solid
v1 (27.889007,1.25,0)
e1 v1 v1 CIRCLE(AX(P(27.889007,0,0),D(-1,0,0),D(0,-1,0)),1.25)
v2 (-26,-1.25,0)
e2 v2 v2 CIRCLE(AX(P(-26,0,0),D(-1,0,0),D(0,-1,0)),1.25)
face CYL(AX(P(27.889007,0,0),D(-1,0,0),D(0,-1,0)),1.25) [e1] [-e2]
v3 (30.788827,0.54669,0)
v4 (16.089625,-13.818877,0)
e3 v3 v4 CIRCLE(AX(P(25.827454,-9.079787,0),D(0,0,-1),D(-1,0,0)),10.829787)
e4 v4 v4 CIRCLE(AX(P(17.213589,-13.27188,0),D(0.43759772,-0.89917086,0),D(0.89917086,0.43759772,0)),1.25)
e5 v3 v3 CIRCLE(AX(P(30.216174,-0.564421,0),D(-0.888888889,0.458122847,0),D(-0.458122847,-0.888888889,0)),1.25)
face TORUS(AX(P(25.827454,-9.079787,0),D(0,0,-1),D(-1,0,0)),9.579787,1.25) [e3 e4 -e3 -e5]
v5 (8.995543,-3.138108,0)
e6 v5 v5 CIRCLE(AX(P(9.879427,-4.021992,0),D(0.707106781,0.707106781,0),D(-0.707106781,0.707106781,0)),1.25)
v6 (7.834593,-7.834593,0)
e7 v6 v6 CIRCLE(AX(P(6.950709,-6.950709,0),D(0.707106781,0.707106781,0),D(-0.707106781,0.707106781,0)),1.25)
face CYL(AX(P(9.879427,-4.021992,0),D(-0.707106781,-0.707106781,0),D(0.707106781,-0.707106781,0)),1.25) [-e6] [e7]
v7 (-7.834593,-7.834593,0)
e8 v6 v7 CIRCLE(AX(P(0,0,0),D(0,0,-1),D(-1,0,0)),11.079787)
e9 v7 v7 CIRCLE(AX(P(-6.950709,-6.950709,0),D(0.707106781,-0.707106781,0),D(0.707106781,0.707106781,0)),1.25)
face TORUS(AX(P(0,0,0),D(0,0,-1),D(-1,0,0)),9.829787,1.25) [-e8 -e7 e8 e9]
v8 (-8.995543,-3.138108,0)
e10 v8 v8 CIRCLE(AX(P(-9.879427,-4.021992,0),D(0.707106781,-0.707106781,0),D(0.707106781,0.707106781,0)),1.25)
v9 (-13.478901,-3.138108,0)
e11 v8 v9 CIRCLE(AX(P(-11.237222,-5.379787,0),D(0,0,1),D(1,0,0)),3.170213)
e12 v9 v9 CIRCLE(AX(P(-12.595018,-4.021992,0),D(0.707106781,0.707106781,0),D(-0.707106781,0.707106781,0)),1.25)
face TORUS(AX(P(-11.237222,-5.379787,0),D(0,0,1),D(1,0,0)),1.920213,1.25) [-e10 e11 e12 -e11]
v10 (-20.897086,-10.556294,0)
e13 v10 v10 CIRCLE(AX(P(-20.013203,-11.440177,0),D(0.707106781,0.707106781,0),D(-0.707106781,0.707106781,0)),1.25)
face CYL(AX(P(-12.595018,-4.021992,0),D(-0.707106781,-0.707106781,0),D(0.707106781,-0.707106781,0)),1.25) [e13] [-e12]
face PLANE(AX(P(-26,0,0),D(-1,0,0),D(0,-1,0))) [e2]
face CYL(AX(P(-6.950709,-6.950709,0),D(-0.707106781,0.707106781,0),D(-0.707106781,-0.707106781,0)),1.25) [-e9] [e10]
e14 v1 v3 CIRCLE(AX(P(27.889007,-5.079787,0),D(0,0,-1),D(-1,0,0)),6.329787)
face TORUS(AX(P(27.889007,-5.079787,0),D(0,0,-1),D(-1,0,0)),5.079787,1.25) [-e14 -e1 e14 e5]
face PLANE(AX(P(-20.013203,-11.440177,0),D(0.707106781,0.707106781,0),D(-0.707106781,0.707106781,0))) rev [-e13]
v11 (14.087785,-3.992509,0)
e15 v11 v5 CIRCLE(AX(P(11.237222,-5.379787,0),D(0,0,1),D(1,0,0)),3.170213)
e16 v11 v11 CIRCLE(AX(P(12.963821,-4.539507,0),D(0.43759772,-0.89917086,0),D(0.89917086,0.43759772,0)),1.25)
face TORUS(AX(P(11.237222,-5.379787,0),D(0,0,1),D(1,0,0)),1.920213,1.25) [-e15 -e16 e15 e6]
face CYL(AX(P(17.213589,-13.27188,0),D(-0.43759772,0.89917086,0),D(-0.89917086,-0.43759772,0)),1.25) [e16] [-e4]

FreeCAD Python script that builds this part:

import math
import FreeCAD as App
import Part
import Sketcher
Q = App.Units.Quantity

doc = App.newDocument("Part")
body = doc.addObject("PartDesign::Body", "Body")

sketch1 = doc.addObject("Sketcher::SketchObject", "Sketch")
body.addObject(sketch1)
sketch1.AttachmentSupport = (doc.YZ_Plane, [""])
sketch1.MapMode = "FlatFace"
sketch1.AttachmentOffset = App.Placement(App.Vector(0, 0, -26), App.Rotation())
sketch1.addGeometry(Part.Circle(App.Vector(0, 0, 0), App.Vector(0, 0, 1), 1.2), False)
sketch1.addConstraint([
    Sketcher.Constraint("Coincident", 0, 3, -1, 1),
    Sketcher.Constraint("Diameter", 0, Q("2.5 mm")),
])

sketch2 = doc.addObject("Sketcher::SketchObject", "Sketch001")
body.addObject(sketch2)
sketch2.AttachmentSupport = (doc.XY_Plane, [""])
sketch2.MapMode = "FlatFace"
sketch2.addGeometry([
    Part.LineSegment(App.Vector(-26, -0.1, 0), App.Vector(27.9, -0.1, 0)),
    Part.ArcOfCircle(Part.Circle(App.Vector(27.9, -5.1, 0), App.Vector(0, 0, 1), 5), math.radians(63), math.radians(90)),
    Part.ArcOfCircle(Part.Circle(App.Vector(25.8, -9.1, 0), App.Vector(0, 0, 1), 9.5), math.radians(-154), math.radians(63)),
    Part.LineSegment(App.Vector(17.3, -13.2, 0), App.Vector(13, -4.5, 0)),
    Part.ArcOfCircle(Part.Circle(App.Vector(11.2, -5.4, 0), App.Vector(0, 0, 1), 2), math.radians(26), math.radians(135)),
    Part.LineSegment(App.Vector(9.8, -4, 0), App.Vector(6.9, -6.9, 0)),
    Part.ArcOfCircle(Part.Circle(App.Vector(0, 0, 0), App.Vector(0, 0, 1), 9.8), math.radians(-135), math.radians(-45)),
    Part.LineSegment(App.Vector(-6.9, -6.9, 0), App.Vector(-9.8, -4, 0)),
    Part.ArcOfCircle(Part.Circle(App.Vector(-11.2, -5.4, 0), App.Vector(0, 0, 1), 2), math.radians(45), math.radians(135)),
    Part.LineSegment(App.Vector(-12.7, -4, 0), App.Vector(-20.1, -11.4, 0)),
], False)
sketch2.addConstraint([
    Sketcher.Constraint("Tangent", 0, 2, 1, 2),
    Sketcher.Constraint("Tangent", 1, 1, 2, 2),
    Sketcher.Constraint("Tangent", 2, 1, 3, 1),
    Sketcher.Constraint("Tangent", 3, 2, 4, 1),
    Sketcher.Constraint("Tangent", 4, 2, 5, 1),
    Sketcher.Constraint("Tangent", 5, 2, 6, 2),
    Sketcher.Constraint("Tangent", 6, 1, 7, 1),
    Sketcher.Constraint("Tangent", 7, 2, 8, 1),
    Sketcher.Constraint("Tangent", 8, 2, 9, 1),
    Sketcher.Constraint("Horizontal", 0),
    Sketcher.Constraint("Coincident", 6, 3, -1, 1),
    Sketcher.Constraint("Equal", 4, 8),
    Sketcher.Constraint("Symmetric", 4, 3, 8, 3, -2),
    Sketcher.Constraint("Perpendicular", 5, 7),
    Sketcher.Constraint("Perpendicular", 7, 9),
    Sketcher.Constraint("Radius", 1, Q("5 mm")),
    Sketcher.Constraint("Radius", 4, Q("2 mm")),
    Sketcher.Constraint("Radius", 2, Q("9.5 mm")),
    Sketcher.Constraint("Radius", 6, Q("9.75 mm")),
    Sketcher.Constraint("DistanceX", 0, 1, -1, 1, Q("26 mm")),
    Sketcher.Constraint("DistanceY", 2, 3, 1, 3, Q("4 mm")),
    Sketcher.Constraint("DistanceY", 2, 3, 4, 3, Q("3.7 mm")),
    Sketcher.Constraint("Distance", 9, Q("10.490898 mm")),
    Sketcher.Constraint("DistanceX", 4, 3, 1, 1, Q("18.942399 mm")),
    Sketcher.Constraint("DistanceY", 5, 2, 3, 2, Q("2.389699 mm")),
])
doc.recompute()

additivepipe = doc.addObject("PartDesign::AdditivePipe", "AdditivePipe")
body.addObject(additivepipe)
additivepipe.Profile = sketch1
additivepipe.Spine = (sketch2, ["Edge1", "Edge2", "Edge3", "Edge4", "Edge5", "Edge6", "Edge7", "Edge8", "Edge9", "Edge10"])

doc.recompute()
